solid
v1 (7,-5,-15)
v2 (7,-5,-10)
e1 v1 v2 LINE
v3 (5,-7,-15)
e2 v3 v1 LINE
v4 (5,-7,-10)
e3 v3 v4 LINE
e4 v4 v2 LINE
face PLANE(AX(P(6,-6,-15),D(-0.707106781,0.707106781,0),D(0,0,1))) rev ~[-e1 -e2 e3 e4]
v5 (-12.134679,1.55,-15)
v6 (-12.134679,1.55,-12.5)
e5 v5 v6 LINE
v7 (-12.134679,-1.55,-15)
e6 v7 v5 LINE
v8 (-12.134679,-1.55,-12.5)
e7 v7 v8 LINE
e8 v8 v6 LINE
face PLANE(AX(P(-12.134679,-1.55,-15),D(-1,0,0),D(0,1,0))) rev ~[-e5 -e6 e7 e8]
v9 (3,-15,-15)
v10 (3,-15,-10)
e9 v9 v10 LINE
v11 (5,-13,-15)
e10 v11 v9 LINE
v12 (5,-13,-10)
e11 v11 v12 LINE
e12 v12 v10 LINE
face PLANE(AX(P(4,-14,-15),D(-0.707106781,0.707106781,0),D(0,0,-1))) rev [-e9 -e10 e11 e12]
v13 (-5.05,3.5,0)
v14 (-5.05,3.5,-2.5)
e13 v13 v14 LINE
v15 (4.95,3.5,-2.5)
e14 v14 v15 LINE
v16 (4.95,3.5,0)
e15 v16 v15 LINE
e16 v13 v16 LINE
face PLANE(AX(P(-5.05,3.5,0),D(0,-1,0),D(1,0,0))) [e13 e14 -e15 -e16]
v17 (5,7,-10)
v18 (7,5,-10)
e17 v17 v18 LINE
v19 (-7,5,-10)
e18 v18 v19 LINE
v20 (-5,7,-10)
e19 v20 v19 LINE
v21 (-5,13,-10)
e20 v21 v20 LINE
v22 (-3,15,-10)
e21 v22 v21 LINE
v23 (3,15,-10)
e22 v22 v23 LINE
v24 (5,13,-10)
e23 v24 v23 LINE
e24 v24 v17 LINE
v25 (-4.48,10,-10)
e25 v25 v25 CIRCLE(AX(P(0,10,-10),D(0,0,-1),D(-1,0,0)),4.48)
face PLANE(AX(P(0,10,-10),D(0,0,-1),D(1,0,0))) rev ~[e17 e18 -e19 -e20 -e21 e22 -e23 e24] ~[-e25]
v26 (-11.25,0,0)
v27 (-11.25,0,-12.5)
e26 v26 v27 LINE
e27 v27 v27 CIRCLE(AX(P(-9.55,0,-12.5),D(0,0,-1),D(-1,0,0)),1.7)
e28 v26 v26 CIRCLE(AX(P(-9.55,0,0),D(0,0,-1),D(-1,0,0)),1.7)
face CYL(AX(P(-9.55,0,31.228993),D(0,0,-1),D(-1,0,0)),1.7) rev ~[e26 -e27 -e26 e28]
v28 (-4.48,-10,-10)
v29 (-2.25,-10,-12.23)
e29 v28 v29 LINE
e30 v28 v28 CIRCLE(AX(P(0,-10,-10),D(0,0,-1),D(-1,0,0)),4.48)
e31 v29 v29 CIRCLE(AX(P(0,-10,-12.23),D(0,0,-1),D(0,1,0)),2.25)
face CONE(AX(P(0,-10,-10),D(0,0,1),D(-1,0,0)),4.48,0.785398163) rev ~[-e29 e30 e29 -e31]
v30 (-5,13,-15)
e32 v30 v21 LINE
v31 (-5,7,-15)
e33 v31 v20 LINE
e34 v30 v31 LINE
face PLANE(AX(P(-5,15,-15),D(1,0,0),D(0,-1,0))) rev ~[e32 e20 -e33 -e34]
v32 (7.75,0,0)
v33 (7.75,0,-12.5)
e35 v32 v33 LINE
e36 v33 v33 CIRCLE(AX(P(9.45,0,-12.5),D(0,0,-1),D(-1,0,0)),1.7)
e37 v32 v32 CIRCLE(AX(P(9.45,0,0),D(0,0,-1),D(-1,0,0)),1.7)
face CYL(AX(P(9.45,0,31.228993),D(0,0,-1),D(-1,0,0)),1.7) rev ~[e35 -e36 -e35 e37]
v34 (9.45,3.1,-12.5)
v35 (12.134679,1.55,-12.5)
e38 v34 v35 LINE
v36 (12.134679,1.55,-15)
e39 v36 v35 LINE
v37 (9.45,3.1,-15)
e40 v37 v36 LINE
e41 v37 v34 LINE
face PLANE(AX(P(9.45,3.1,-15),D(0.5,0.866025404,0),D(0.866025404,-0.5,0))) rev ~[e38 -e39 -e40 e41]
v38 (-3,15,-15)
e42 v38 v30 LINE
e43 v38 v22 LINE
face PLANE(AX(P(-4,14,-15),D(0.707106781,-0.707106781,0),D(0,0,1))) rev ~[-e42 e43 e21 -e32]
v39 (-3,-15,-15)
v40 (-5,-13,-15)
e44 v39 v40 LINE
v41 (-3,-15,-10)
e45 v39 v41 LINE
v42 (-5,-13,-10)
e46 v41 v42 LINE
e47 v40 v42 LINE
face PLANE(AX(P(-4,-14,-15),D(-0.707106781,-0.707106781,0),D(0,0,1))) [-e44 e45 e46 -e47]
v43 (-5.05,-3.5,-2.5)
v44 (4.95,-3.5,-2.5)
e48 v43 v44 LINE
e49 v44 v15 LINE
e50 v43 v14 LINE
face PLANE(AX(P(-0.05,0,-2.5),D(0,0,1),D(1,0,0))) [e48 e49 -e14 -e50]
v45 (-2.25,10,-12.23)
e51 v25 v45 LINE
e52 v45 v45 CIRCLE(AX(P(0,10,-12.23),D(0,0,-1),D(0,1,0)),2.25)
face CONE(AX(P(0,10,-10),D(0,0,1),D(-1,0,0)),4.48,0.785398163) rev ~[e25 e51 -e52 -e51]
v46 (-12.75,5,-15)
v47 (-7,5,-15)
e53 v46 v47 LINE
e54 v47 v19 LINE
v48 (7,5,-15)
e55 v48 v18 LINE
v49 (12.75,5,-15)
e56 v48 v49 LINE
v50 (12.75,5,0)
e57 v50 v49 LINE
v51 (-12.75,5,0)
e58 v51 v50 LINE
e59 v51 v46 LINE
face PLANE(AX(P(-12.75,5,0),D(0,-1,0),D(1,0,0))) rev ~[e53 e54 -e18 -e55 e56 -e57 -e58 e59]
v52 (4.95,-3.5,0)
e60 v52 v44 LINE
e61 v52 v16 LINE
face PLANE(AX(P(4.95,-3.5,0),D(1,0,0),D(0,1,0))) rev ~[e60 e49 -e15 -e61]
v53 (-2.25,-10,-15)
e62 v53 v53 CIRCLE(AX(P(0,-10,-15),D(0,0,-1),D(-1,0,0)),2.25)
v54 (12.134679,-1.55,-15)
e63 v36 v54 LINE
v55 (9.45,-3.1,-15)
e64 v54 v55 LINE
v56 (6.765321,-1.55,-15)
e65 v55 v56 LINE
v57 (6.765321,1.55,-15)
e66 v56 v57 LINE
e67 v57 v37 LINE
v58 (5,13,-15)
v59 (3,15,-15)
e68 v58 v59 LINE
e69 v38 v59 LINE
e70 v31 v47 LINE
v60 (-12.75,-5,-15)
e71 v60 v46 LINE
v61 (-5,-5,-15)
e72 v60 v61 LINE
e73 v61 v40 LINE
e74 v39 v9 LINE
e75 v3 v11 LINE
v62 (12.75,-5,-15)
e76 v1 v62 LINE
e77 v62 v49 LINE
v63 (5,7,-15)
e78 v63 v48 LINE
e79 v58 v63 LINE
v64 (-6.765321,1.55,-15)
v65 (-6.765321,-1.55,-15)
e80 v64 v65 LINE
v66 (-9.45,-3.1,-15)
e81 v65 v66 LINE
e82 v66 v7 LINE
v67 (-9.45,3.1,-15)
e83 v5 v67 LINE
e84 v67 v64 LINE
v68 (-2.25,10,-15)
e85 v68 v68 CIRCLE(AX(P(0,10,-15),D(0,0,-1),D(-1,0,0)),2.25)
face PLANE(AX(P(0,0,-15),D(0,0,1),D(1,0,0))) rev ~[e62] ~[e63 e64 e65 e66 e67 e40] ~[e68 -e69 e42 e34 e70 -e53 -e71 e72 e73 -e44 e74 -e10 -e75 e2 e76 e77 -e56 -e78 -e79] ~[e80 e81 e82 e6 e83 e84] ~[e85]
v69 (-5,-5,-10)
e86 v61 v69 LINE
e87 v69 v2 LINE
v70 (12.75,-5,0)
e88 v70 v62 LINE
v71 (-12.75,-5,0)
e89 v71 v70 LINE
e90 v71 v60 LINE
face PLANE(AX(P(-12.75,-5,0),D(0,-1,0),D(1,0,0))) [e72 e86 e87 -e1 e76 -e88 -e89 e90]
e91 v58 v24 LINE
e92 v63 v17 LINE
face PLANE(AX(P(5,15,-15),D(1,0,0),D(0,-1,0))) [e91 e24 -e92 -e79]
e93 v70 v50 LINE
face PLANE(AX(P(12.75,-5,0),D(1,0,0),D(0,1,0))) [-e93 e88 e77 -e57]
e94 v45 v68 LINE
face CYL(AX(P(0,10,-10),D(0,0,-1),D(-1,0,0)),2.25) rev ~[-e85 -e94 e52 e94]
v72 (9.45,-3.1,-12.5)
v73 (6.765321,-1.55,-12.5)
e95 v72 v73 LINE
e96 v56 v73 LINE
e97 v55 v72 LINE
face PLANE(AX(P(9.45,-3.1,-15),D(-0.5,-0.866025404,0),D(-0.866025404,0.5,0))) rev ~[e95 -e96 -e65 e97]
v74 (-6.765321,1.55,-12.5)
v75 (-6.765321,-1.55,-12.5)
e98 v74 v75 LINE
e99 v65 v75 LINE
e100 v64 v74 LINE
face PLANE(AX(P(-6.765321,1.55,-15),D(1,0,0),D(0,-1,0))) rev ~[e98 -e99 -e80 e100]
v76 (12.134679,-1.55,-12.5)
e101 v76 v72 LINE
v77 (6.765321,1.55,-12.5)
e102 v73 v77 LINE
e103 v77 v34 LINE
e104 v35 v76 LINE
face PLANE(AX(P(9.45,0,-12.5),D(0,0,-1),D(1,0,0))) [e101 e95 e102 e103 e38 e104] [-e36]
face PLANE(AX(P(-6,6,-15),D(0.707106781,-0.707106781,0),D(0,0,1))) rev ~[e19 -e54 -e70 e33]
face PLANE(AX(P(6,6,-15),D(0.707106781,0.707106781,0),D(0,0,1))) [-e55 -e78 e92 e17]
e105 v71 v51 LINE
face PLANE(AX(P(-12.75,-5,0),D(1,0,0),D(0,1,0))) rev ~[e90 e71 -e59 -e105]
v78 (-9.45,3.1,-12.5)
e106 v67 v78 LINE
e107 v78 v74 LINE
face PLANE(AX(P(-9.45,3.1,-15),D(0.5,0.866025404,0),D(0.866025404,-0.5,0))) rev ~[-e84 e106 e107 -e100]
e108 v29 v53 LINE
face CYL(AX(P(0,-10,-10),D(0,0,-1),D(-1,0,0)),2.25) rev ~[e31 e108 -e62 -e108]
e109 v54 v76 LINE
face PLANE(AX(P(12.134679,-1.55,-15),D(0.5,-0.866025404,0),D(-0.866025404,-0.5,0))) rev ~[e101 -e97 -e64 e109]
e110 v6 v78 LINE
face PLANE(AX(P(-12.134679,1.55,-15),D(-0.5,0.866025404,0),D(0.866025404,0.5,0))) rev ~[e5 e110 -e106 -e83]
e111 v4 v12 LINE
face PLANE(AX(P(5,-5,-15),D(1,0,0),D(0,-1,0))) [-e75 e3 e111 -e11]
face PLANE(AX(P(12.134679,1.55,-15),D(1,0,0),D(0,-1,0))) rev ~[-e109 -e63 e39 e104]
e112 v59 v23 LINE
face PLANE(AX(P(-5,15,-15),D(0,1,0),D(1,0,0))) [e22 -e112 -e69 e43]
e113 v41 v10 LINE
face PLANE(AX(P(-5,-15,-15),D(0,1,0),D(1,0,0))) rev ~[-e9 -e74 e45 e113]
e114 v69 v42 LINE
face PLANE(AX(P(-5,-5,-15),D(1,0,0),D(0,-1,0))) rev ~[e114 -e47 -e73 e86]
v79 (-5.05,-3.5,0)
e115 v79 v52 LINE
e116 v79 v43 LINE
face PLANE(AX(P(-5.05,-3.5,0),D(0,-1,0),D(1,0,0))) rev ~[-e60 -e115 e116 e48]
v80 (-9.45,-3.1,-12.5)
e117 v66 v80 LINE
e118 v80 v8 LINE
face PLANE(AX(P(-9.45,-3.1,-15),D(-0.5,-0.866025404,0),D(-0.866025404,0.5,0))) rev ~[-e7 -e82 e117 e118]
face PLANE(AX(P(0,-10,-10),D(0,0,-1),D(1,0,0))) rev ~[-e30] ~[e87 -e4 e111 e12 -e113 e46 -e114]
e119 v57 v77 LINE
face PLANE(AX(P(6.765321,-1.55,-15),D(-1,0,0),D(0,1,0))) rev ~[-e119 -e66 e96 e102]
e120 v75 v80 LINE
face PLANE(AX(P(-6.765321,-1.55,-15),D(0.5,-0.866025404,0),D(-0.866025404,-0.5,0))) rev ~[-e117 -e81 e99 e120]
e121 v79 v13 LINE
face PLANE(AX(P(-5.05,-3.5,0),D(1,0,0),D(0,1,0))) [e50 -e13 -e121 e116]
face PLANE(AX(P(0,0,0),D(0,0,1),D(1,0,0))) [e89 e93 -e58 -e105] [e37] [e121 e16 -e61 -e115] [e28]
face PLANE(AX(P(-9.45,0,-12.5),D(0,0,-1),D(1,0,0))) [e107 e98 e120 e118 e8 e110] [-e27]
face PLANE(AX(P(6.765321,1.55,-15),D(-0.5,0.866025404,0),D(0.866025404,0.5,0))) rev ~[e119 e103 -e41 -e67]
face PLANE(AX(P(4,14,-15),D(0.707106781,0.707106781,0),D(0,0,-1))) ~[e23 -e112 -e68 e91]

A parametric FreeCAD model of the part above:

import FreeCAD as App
import Part
import Sketcher
from FreeCAD import Vector
Q = App.Units.Quantity


def edges_at(feature, points):
    """Names of the edges that pass closest to the given points."""
    edges = feature.Shape.Edges
    near = lambda p: min(range(len(edges)), key=lambda i: edges[i].distToShape(Part.Vertex(*p))[0])
    return sorted({f"Edge{near(p) + 1}" for p in points})


def add_polygon(sketch, points):
    """Adds a closed chain of lines whose ends are joined by coincident constraints."""
    first, n = sketch.GeometryCount, len(points)
    for a, b in zip(points, points[1:] + points[:1]):
        sketch.addGeometry(Part.LineSegment(App.Vector(*a, 0), App.Vector(*b, 0)), False)
    for i in range(n):
        sketch.addConstraint(Sketcher.Constraint("Coincident", first + i, 2, first + (i + 1) % n, 1))

doc = App.newDocument("Part")
body = doc.addObject("PartDesign::Body", "Body")

sketch1 = doc.addObject("Sketcher::SketchObject", "Sketch")
body.addObject(sketch1)
sketch1.AttachmentSupport = (doc.XY_Plane, [""])
sketch1.MapMode = "FlatFace"
add_polygon(sketch1, [(-13, 5), (-13, -5), (13, -5), (13, 5)])
sketch1.addConstraint([
    Sketcher.Constraint("Vertical", 0),
    Sketcher.Constraint("Horizontal", 1),
    Sketcher.Constraint("Vertical", 2),
    Sketcher.Constraint("Horizontal", 3),
    Sketcher.Constraint("Symmetric", 0, 2, 2, 2, -1, 1),
    Sketcher.Constraint("DistanceY", 0, 2, 0, 1, 10.0),
    Sketcher.Constraint("DistanceX", 1, 1, 1, 2, 25.5),
])
pad1 = doc.addObject("PartDesign::Pad", "Pad")
body.addObject(pad1)
pad1.Profile = sketch1
pad1.Length = 15
pad1.Reversed = True

sketch2 = doc.addObject("Sketcher::SketchObject", "Sketch001")
body.addObject(sketch2)
sketch2.AttachmentSupport = (doc.XY_Plane, [""])
sketch2.MapMode = "FlatFace"
sketch2.addGeometry([
    Part.Circle(Vector(-9.6, 0, 0), Vector(0, 0, 1), 1.7),
    Part.Circle(Vector(9.4, 0, 0), Vector(0, 0, 1), 1.7),
], False)
sketch2.addConstraint([
    Sketcher.Constraint("Equal", 0, 1),
    Sketcher.Constraint("PointOnObject", 0, 3, -1),
    Sketcher.Constraint("PointOnObject", 1, 3, -1),
    Sketcher.Constraint("Diameter", 0, 3.4),
    Sketcher.Constraint("DistanceX", 0, 3, 1, 3, 19.0),
    Sketcher.Constraint("DistanceX", 0, 3, -1, 1, 9.55),
])
doc.recompute()
hole = doc.addObject("PartDesign::Hole", "Hole")
body.addObject(hole)
hole.Profile = sketch2
hole.ThreadType = "None"
hole.Diameter = 3.4
hole.DepthType = "ThroughAll"

sketch3 = doc.addObject("Sketcher::SketchObject", "Sketch002")
body.addObject(sketch3)
sketch3.AttachmentSupport = (doc.XY_Plane, [""])
sketch3.MapMode = "FlatFace"
add_polygon(sketch3, [(-5, 4), (-5, -4), (5, -4), (5, 4)])
sketch3.addConstraint([
    Sketcher.Constraint("Vertical", 0),
    Sketcher.Constraint("Horizontal", 1),
    Sketcher.Constraint("Vertical", 2),
    Sketcher.Constraint("Horizontal", 3),
    Sketcher.Constraint("DistanceX", 1, 1, 1, 2, 10.0),
    Sketcher.Constraint("DistanceY", 0, 2, 0, 1, 7.0),
    Sketcher.Constraint("DistanceY", 0, 2, -1, 1, 3.5),
    Sketcher.Constraint("DistanceX", 0, 2, -1, 1, 5.05),
])
pocket1 = doc.addObject("PartDesign::Pocket", "Pocket")
body.addObject(pocket1)
pocket1.Profile = sketch3
pocket1.Length = 2.5

sketch4 = doc.addObject("Sketcher::SketchObject", "Sketch003")
body.addObject(sketch4)
sketch4.AttachmentSupport = (doc.XY_Plane, [""])
sketch4.MapMode = "FlatFace"
sketch4.AttachmentOffset = App.Placement(Vector(0, 0, -15), App.Rotation())
add_polygon(sketch4, [(-5, -15), (-5, -5), (5, -5), (5, -15)])
add_polygon(sketch4, [(-5, 5), (-5, 15), (5, 15), (5, 5)])
sketch4.addConstraint([
    Sketcher.Constraint("Vertical", 0),
    Sketcher.Constraint("Horizontal", 1),
    Sketcher.Constraint("Vertical", 2),
    Sketcher.Constraint("Horizontal", 3),
    Sketcher.Constraint("Vertical", 4),
    Sketcher.Constraint("Horizontal", 5),
    Sketcher.Constraint("Vertical", 6),
    Sketcher.Constraint("Horizontal", 7),
    Sketcher.Constraint("Symmetric", 2, 2, 4, 2, -1, 1),
    Sketcher.Constraint("Symmetric", 0, 2, 6, 2, -1, 1),
    Sketcher.Constraint("Vertical", 3, 2, 4, 2),
    Sketcher.Constraint("Equal", 7, 0),
    Sketcher.Constraint("DistanceX", 1, 1, 1, 2, 10.0),
    Sketcher.Constraint("DistanceY", 0, 2, -1, 1, 5.0),
])
pad2 = doc.addObject("PartDesign::Pad", "Pad001")
body.addObject(pad2)
pad2.Profile = sketch4
pad2.Length = 5

sketch5 = doc.addObject("Sketcher::SketchObject", "Sketch004")
body.addObject(sketch5)
sketch5.AttachmentSupport = (doc.XY_Plane, [""])
sketch5.MapMode = "FlatFace"
sketch5.AttachmentOffset = App.Placement(Vector(0, 0, -10), App.Rotation())
sketch5.addGeometry([
    Part.Circle(Vector(0, -10, 0), Vector(0, 0, 1), 2.2),
    Part.Circle(Vector(0, 10, 0), Vector(0, 0, 1), 2.2),
], False)
sketch5.addConstraint([
    Sketcher.Constraint("Equal", 0, 1),
    Sketcher.Constraint("Symmetric", 0, 3, 1, 3, -1, 1),
    Sketcher.Constraint("PointOnObject", 0, 3, -2),
    Sketcher.Constraint("Diameter", 0, 4.5),
    Sketcher.Constraint("DistanceY", 0, 3, -1, 1, 10.0),
])
doc.recompute()
hole2 = doc.addObject("PartDesign::Hole", "Hole001")
body.addObject(hole2)
hole2.Profile = sketch5
hole2.ThreadType = "None"
hole2.Diameter = 4.5
hole2.DepthType = "ThroughAll"
hole2.HoleCutType = "Countersink"
hole2.HoleCutDiameter = 8.96
hole2.HoleCutCountersinkAngle = 90
doc.recompute()

chamfer = doc.addObject("PartDesign::Chamfer", "Chamfer")
body.addObject(chamfer)
chamfer.Base = (hole2, edges_at(hole2, [
    (-5, 15, -12.5),
    (5, 15, -12.5),
    (5, 5, -12.5),
    (-5, 5, -12.5),
    (5, -5, -12.5),
    (5, -15, -12.5),
    (-5, -15, -12.5),
]))
chamfer.Size = 2

sketch6 = doc.addObject("Sketcher::SketchObject", "Sketch005")
body.addObject(sketch6)
sketch6.AttachmentSupport = (doc.XY_Plane, [""])
sketch6.MapMode = "FlatFace"
sketch6.AttachmentOffset = App.Placement(Vector(0, 0, -15), App.Rotation())
add_polygon(sketch6, [(6.8, 1.6), (9.4, 3.1), (12.1, 1.6), (12.1, -1.6), (9.4, -3.1), (6.8, -1.6)])
add_polygon(sketch6, [(-12.1, 1.6), (-9.4, 3.1), (-6.8, 1.6), (-6.8, -1.6), (-9.4, -3.1), (-12.1, -1.6)])
sketch6.addConstraint([
    Sketcher.Constraint("Vertical", 2),
    Sketcher.Constraint("Vertical", 5),
    Sketcher.Constraint("Vertical", 8),
    Sketcher.Constraint("Vertical", 11),
    Sketcher.Constraint("Symmetric", 3, 2, 6, 2, -1, 1),
    Sketcher.Constraint("Symmetric", 4, 2, 7, 2, -1, 1),
    Sketcher.Constraint("Symmetric", 0, 2, 9, 2, -1, 1),
    Sketcher.Constraint("Symmetric", 1, 2, 10, 2, -1, 1),
    Sketcher.Constraint("Symmetric", 0, 2, 6, 2, -2),
    Sketcher.Constraint("Parallel", 0, 3),
    Sketcher.Constraint("Parallel", 1, 4),
    Sketcher.Constraint("Parallel", 3, 6),
    Sketcher.Constraint("Parallel", 6, 9),
    Sketcher.Constraint("Horizontal", 2, 2, 4, 2),
    Sketcher.Constraint("Horizontal", 1, 2, 5, 2),
    Sketcher.Constraint("Angle", 0, Q("30 deg")),
    Sketcher.Constraint("DistanceY", 2, 2, 2, 1, 3.1),
    Sketcher.Constraint("Distance", 0, 3.1),
    Sketcher.Constraint("DistanceX", 6, 2, 0, 2, 18.9),
])
pocket2 = doc.addObject("PartDesign::Pocket", "Pocket001")
body.addObject(pocket2)
pocket2.Profile = sketch6
pocket2.Length = 2.5
pocket2.Reversed = True

doc.recompute()
